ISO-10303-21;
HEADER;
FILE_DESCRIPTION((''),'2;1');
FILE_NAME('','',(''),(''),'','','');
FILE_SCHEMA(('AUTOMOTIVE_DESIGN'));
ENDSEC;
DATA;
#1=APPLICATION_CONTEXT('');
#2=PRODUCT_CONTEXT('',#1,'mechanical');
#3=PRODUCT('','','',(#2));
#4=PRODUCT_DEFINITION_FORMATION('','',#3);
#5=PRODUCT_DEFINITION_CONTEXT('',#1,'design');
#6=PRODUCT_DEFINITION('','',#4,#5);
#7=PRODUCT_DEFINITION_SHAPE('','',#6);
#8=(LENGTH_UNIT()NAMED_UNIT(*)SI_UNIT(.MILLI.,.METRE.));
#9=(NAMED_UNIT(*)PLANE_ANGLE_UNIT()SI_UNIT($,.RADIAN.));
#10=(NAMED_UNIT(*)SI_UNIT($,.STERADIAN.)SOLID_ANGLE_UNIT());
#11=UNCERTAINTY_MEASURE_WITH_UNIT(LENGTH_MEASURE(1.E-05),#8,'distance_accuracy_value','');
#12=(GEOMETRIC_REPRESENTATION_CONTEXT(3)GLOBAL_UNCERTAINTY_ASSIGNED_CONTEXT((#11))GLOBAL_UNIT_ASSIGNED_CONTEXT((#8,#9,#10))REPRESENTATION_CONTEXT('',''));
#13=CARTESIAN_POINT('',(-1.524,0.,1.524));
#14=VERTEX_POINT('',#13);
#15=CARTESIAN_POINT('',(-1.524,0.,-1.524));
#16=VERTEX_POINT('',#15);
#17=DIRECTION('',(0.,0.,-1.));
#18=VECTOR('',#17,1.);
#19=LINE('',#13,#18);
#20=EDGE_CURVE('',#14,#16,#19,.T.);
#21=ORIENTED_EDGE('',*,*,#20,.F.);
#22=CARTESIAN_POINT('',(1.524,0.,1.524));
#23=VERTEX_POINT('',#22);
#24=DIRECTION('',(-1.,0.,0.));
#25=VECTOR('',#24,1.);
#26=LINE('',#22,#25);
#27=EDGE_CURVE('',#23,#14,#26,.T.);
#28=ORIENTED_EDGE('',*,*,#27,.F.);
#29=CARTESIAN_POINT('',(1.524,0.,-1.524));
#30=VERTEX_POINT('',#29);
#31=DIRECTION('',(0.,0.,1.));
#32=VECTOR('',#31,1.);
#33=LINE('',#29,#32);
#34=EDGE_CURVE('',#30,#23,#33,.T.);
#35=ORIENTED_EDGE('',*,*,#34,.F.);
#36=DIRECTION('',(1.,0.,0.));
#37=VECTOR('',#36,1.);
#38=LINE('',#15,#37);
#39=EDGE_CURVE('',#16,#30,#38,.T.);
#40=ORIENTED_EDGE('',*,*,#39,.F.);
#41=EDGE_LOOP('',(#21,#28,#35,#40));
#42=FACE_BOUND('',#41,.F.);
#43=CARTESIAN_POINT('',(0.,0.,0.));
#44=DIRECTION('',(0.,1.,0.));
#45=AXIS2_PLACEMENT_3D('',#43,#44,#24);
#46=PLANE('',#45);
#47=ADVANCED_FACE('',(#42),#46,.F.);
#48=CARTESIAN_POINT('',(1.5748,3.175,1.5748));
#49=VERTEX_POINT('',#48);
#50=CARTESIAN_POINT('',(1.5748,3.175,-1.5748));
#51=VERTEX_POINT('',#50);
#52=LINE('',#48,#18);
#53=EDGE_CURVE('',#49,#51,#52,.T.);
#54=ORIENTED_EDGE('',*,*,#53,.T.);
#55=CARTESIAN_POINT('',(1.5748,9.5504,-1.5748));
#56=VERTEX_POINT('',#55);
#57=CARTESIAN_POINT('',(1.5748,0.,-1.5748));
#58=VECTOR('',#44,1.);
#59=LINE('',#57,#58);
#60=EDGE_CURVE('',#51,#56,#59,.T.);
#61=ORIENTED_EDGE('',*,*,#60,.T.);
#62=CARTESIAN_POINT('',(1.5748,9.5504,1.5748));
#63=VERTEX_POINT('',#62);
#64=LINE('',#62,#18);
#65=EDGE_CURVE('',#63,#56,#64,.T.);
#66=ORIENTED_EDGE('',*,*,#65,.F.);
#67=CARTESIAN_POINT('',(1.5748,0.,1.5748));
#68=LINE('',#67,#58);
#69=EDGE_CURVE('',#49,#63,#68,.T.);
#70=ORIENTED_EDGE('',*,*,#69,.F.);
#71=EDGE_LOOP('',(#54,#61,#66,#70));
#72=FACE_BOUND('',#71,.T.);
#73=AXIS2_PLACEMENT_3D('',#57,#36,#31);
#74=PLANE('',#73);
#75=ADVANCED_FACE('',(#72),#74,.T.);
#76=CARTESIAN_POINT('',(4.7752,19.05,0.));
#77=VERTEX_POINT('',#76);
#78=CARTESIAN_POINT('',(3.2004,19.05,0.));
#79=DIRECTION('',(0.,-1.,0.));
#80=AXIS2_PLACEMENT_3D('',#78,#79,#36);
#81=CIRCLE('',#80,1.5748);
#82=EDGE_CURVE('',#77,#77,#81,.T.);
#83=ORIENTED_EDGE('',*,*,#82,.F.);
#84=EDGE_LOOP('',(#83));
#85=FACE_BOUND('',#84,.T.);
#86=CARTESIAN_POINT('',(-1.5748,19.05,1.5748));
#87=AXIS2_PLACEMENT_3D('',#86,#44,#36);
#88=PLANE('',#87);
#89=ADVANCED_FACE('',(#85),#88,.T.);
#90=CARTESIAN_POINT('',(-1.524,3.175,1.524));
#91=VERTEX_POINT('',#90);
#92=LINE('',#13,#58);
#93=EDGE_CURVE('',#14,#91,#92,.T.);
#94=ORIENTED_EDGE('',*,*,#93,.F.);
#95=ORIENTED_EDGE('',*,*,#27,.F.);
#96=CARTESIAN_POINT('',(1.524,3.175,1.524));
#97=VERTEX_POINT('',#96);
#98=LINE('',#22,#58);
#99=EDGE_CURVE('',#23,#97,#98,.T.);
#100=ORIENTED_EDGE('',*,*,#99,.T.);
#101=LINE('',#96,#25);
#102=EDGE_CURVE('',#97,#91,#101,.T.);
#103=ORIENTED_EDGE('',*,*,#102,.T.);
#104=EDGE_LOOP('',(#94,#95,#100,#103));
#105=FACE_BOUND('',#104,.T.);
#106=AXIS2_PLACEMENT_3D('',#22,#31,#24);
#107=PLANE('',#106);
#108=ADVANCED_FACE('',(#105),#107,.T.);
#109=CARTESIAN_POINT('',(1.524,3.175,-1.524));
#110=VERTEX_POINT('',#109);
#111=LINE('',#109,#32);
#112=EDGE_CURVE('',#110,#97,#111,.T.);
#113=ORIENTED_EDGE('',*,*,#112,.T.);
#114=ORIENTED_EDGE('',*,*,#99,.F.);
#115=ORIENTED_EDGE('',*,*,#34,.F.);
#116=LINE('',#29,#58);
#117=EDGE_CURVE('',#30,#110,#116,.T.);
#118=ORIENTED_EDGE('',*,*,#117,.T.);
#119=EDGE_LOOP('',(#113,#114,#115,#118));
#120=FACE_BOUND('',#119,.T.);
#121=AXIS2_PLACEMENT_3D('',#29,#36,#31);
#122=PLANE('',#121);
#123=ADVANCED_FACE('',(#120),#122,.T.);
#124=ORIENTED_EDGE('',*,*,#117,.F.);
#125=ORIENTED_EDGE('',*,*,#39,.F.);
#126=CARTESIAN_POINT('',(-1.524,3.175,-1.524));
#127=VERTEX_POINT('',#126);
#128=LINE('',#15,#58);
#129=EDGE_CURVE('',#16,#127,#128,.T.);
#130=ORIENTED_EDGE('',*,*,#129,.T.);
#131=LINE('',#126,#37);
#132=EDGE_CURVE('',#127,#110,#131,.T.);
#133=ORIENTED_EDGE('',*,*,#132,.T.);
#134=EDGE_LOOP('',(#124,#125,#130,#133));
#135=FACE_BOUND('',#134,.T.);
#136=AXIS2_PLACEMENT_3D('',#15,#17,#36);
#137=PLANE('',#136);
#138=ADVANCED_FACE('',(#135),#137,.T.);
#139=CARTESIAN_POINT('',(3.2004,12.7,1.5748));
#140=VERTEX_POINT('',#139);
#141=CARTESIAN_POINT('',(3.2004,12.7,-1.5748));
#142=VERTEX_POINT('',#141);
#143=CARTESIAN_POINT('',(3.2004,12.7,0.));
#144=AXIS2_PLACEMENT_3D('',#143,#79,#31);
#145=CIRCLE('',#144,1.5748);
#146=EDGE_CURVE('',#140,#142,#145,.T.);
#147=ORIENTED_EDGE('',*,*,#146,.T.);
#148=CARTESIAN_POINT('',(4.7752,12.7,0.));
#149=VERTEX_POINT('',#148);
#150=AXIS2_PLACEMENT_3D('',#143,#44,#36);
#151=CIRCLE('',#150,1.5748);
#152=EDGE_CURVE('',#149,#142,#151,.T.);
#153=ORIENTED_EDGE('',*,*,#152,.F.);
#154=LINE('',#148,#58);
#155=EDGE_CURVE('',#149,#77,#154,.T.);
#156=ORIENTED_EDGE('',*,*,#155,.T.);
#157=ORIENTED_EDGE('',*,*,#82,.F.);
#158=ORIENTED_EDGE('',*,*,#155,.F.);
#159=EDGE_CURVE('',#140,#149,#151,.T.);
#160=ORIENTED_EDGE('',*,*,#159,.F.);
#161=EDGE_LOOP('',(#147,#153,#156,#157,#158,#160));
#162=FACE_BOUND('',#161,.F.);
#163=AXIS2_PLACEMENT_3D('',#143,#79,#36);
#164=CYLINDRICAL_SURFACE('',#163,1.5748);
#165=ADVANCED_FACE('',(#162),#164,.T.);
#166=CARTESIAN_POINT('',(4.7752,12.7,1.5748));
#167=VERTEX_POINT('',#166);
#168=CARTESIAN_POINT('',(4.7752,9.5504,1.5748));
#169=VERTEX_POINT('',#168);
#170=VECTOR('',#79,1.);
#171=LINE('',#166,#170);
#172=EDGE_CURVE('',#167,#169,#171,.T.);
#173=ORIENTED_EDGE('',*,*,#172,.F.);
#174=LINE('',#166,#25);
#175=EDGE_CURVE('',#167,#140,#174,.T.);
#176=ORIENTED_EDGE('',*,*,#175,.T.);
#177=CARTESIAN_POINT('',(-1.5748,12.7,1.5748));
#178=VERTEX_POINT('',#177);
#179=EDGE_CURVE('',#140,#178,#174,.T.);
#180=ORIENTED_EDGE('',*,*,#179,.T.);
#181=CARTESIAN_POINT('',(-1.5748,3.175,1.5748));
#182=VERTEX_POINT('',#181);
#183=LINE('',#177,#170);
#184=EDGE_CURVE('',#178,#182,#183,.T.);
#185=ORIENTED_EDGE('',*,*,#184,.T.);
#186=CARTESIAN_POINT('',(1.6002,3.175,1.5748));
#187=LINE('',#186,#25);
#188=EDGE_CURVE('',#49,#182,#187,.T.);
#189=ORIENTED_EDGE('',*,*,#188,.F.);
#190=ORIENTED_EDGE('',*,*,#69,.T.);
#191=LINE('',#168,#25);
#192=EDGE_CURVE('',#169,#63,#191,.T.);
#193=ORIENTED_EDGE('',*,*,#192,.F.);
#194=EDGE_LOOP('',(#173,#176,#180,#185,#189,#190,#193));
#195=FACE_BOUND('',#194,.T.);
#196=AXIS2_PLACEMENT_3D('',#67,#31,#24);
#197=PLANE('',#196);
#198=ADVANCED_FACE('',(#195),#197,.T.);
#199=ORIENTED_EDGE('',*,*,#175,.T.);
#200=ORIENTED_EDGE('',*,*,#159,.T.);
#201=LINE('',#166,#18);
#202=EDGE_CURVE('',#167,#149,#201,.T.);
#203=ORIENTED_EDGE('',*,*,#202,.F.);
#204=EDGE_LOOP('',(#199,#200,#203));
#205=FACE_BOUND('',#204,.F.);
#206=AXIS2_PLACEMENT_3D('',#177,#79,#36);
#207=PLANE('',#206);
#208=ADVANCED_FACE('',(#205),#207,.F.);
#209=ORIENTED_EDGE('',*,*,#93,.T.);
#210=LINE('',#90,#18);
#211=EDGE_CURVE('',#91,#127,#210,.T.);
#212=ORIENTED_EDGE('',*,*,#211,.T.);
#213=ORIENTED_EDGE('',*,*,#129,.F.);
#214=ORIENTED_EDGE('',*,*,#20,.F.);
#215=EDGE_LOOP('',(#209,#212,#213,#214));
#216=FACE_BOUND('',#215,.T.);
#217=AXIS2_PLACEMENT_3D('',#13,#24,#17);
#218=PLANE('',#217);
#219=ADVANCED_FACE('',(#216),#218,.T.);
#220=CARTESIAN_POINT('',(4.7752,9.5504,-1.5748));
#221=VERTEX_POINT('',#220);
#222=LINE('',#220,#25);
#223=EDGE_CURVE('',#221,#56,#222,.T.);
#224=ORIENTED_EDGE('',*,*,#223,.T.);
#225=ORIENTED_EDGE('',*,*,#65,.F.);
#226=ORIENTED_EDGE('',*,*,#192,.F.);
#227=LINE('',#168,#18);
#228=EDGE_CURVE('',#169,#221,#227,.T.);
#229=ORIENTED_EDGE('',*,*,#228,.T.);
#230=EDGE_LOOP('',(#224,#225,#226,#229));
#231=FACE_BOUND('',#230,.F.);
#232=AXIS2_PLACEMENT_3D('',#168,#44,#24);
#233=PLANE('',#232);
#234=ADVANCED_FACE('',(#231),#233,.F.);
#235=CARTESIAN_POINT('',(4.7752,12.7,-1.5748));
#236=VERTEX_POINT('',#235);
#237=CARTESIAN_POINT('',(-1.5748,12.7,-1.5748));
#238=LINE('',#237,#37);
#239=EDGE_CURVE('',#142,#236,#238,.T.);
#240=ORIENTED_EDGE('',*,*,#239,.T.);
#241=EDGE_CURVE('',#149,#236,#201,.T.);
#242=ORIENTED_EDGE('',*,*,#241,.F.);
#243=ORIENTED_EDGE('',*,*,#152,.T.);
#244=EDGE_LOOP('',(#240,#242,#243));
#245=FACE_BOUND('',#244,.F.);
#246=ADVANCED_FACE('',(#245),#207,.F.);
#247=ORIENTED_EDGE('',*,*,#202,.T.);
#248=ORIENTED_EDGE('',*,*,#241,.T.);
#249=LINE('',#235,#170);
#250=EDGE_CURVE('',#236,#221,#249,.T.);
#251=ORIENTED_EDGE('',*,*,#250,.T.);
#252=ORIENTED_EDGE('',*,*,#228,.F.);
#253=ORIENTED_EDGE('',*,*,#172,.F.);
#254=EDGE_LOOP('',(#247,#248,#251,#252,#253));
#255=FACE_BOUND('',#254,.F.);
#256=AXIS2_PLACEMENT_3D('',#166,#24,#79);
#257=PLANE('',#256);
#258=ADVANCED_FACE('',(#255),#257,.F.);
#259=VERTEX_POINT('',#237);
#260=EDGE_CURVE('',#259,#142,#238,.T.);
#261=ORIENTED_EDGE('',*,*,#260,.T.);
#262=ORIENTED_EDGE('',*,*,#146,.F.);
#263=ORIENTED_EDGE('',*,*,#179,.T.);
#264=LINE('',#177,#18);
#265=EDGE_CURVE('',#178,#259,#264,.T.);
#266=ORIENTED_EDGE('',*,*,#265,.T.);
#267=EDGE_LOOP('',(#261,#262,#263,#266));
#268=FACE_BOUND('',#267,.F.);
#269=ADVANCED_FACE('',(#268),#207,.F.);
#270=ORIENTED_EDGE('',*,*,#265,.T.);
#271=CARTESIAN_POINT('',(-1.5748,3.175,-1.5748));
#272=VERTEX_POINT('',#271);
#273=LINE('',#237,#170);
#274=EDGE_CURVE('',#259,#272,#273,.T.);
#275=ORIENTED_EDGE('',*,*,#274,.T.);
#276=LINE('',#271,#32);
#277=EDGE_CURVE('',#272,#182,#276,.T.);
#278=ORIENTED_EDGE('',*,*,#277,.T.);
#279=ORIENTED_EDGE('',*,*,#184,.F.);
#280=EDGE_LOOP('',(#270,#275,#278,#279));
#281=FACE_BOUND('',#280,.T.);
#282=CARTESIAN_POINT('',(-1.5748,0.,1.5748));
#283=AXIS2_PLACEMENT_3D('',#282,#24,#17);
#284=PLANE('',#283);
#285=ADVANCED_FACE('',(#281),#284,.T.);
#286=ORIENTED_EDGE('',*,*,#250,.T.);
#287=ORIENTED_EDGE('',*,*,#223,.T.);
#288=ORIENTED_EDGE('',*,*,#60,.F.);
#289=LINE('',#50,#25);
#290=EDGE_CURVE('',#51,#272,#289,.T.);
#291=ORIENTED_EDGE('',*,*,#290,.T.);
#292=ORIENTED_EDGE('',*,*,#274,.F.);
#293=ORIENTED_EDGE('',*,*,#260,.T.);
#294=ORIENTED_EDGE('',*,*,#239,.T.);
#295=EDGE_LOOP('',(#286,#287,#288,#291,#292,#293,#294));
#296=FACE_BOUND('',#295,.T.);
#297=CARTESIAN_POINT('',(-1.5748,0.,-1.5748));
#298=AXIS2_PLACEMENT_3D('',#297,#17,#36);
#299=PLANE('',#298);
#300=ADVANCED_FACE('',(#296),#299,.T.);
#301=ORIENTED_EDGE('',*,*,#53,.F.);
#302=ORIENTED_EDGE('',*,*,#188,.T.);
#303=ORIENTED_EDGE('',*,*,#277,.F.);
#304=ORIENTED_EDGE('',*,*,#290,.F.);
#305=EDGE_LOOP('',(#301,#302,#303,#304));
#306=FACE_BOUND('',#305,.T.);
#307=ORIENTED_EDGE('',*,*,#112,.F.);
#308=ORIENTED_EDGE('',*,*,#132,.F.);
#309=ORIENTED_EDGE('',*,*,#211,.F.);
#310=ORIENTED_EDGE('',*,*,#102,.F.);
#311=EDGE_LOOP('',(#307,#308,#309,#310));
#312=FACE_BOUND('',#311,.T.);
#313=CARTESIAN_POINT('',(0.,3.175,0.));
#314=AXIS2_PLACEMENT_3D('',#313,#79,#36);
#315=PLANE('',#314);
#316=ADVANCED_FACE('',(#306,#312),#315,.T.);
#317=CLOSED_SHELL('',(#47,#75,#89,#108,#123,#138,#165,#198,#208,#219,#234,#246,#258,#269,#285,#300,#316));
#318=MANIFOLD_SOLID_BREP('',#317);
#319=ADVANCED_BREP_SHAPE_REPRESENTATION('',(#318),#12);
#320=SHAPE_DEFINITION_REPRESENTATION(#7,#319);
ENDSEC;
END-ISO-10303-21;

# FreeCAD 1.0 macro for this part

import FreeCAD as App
import Part
import Sketcher
Q = App.Units.Quantity


def add_polygon(sketch, points):
    """Adds a closed chain of lines whose ends are joined by coincident constraints."""
    first, n = sketch.GeometryCount, len(points)
    for a, b in zip(points, points[1:] + points[:1]):
        sketch.addGeometry(Part.LineSegment(App.Vector(*a, 0), App.Vector(*b, 0)), False)
    for i in range(n):
        sketch.addConstraint(Sketcher.Constraint("Coincident", first + i, 2, first + (i + 1) % n, 1))

doc = App.newDocument("Part")
params = doc.addObject("Spreadsheet::Sheet", "Params")
for row, (alias, value) in enumerate([
    ("sketch1_width", "0.124 in"),
    ("pad1_length", "0.25 in"),
    ("sketch2_height", "0.5 in"),
    ("sketch2_width", "0.25 in"),
    ("sketch2_width2", "0.124 in"),
    ("pad2_length", "0.124 in"),
    ("sketch3_diameter", "0.124 in"),
    ("pad3_length", "0.25 in"),
    ("sketch4_width", "0.12 in"),
    ("sketch4_width2", "0.124 in"),
    ("pocket1_length", "0.125 in"),
], start=1):
    params.set(f"A{row}", alias)
    params.set(f"B{row}", "=" + value)
    params.setAlias(f"B{row}", alias)

body = doc.addObject("PartDesign::Body", "Body")

sketch1 = doc.addObject("Sketcher::SketchObject", "Sketch")
body.addObject(sketch1)
sketch1.AttachmentSupport = (doc.XZ_Plane, [""])
sketch1.MapMode = "FlatFace"
add_polygon(sketch1, [(-1.6, 1.6), (1.6, 1.6), (1.6, -1.6), (-1.6, -1.6)])
sketch1.addConstraint(Sketcher.Constraint("Horizontal", 0))
sketch1.addConstraint(Sketcher.Constraint("Vertical", 1))
sketch1.addConstraint(Sketcher.Constraint("Horizontal", 2))
sketch1.addConstraint(Sketcher.Constraint("Vertical", 3))
sketch1.addConstraint(Sketcher.Constraint("Symmetric", 0, 2, 2, 2, -1, 1))
sketch1.addConstraint(Sketcher.Constraint("Equal", 2, 1))
sketch1.addConstraint(Sketcher.Constraint("DistanceX", 0, 1, 0, 2, Q("0.124 in")))
sketch1.setExpression("Constraints[10]", "Params.sketch1_width")
pad1 = doc.addObject("PartDesign::Pad", "Pad")
body.addObject(pad1)
pad1.Profile = sketch1
pad1.setExpression("Length", "Params.pad1_length")
pad1.Reversed = True

sketch2 = doc.addObject("Sketcher::SketchObject", "Sketch001")
body.addObject(sketch2)
sketch2.AttachmentSupport = (doc.XY_Plane, [""])
sketch2.MapMode = "FlatFace"
sketch2.AttachmentOffset = App.Placement(App.Vector(0, 0, 0.062 * 25.4), App.Rotation())
add_polygon(sketch2, [(-1.6, 0), (1.6, 0), (1.6, 9.6), (4.8, 9.6), (4.8, 12.7), (-1.6, 12.7)])
sketch2.addConstraint(Sketcher.Constraint("Horizontal", 0))
sketch2.addConstraint(Sketcher.Constraint("Vertical", 1))
sketch2.addConstraint(Sketcher.Constraint("Horizontal", 2))
sketch2.addConstraint(Sketcher.Constraint("Vertical", 3))
sketch2.addConstraint(Sketcher.Constraint("Horizontal", 4))
sketch2.addConstraint(Sketcher.Constraint("Vertical", 5))
sketch2.addConstraint(Sketcher.Constraint("Symmetric", 0, 2, 5, 2, -1, 1))
sketch2.addConstraint(Sketcher.Constraint("Equal", 0, 3))
sketch2.addConstraint(Sketcher.Constraint("DistanceY", 5, 2, 5, 1, Q("0.5 in")))
sketch2.addConstraint(Sketcher.Constraint("DistanceX", 4, 2, 4, 1, Q("0.25 in")))
sketch2.addConstraint(Sketcher.Constraint("DistanceX", 0, 1, 0, 2, Q("0.124 in")))
sketch2.setExpression("Constraints[14]", "Params.sketch2_height")
sketch2.setExpression("Constraints[15]", "Params.sketch2_width")
sketch2.setExpression("Constraints[16]", "Params.sketch2_width2")
pad2 = doc.addObject("PartDesign::Pad", "Pad001")
body.addObject(pad2)
pad2.Profile = sketch2
pad2.setExpression("Length", "Params.pad2_length")
pad2.Reversed = True

sketch3 = doc.addObject("Sketcher::SketchObject", "Sketch002")
body.addObject(sketch3)
sketch3.AttachmentSupport = (doc.XZ_Plane, [""])
sketch3.MapMode = "FlatFace"
sketch3.AttachmentOffset = App.Placement(App.Vector(0, 0, -0.5 * 25.4), App.Rotation())
sketch3.addGeometry(Part.Circle(App.Vector(3.2, 0, 0), App.Vector(0, 0, 1), 1.6), False)
sketch3.addConstraint(Sketcher.Constraint("PointOnObject", 0, 3, -1))
sketch3.addConstraint(Sketcher.Constraint("Diameter", 0, Q("0.124 in")))
sketch3.addConstraint(Sketcher.Constraint("DistanceX", -1, 1, 0, 3, Q("0.126 in")))
sketch3.setExpression("Constraints[1]", "Params.sketch3_diameter")
pad3 = doc.addObject("PartDesign::Pad", "Pad002")
body.addObject(pad3)
pad3.Profile = sketch3
pad3.setExpression("Length", "Params.pad3_length")
pad3.Reversed = True

sketch4 = doc.addObject("Sketcher::SketchObject", "Sketch003")
body.addObject(sketch4)
sketch4.AttachmentSupport = (doc.XZ_Plane, [""])
sketch4.MapMode = "FlatFace"
add_polygon(sketch4, [(-1.6, -1.6), (1.6, -1.6), (1.6, 1.6), (-1.6, 1.6)])
add_polygon(sketch4, [(-1.5, 1.5), (1.5, 1.5), (1.5, -1.5), (-1.5, -1.5)])
sketch4.addConstraint(Sketcher.Constraint("Horizontal", 0))
sketch4.addConstraint(Sketcher.Constraint("Vertical", 1))
sketch4.addConstraint(Sketcher.Constraint("Horizontal", 2))
sketch4.addConstraint(Sketcher.Constraint("Vertical", 3))
sketch4.addConstraint(Sketcher.Constraint("Horizontal", 4))
sketch4.addConstraint(Sketcher.Constraint("Vertical", 5))
sketch4.addConstraint(Sketcher.Constraint("Horizontal", 6))
sketch4.addConstraint(Sketcher.Constraint("Vertical", 7))
sketch4.addConstraint(Sketcher.Constraint("Symmetric", 0, 2, 2, 2, -1, 1))
sketch4.addConstraint(Sketcher.Constraint("Symmetric", 4, 2, 6, 2, -1, 1))
sketch4.addConstraint(Sketcher.Constraint("Equal", 2, 1))
sketch4.addConstraint(Sketcher.Constraint("Equal", 6, 5))
sketch4.addConstraint(Sketcher.Constraint("DistanceX", 4, 1, 4, 2, Q("0.12 in")))
sketch4.addConstraint(Sketcher.Constraint("DistanceX", 0, 1, 0, 2, Q("0.124 in")))
sketch4.setExpression("Constraints[20]", "Params.sketch4_width")
sketch4.setExpression("Constraints[21]", "Params.sketch4_width2")
pocket1 = doc.addObject("PartDesign::Pocket", "Pocket")
body.addObject(pocket1)
pocket1.Profile = sketch4
pocket1.setExpression("Length", "Params.pocket1_length")

doc.recompute()
